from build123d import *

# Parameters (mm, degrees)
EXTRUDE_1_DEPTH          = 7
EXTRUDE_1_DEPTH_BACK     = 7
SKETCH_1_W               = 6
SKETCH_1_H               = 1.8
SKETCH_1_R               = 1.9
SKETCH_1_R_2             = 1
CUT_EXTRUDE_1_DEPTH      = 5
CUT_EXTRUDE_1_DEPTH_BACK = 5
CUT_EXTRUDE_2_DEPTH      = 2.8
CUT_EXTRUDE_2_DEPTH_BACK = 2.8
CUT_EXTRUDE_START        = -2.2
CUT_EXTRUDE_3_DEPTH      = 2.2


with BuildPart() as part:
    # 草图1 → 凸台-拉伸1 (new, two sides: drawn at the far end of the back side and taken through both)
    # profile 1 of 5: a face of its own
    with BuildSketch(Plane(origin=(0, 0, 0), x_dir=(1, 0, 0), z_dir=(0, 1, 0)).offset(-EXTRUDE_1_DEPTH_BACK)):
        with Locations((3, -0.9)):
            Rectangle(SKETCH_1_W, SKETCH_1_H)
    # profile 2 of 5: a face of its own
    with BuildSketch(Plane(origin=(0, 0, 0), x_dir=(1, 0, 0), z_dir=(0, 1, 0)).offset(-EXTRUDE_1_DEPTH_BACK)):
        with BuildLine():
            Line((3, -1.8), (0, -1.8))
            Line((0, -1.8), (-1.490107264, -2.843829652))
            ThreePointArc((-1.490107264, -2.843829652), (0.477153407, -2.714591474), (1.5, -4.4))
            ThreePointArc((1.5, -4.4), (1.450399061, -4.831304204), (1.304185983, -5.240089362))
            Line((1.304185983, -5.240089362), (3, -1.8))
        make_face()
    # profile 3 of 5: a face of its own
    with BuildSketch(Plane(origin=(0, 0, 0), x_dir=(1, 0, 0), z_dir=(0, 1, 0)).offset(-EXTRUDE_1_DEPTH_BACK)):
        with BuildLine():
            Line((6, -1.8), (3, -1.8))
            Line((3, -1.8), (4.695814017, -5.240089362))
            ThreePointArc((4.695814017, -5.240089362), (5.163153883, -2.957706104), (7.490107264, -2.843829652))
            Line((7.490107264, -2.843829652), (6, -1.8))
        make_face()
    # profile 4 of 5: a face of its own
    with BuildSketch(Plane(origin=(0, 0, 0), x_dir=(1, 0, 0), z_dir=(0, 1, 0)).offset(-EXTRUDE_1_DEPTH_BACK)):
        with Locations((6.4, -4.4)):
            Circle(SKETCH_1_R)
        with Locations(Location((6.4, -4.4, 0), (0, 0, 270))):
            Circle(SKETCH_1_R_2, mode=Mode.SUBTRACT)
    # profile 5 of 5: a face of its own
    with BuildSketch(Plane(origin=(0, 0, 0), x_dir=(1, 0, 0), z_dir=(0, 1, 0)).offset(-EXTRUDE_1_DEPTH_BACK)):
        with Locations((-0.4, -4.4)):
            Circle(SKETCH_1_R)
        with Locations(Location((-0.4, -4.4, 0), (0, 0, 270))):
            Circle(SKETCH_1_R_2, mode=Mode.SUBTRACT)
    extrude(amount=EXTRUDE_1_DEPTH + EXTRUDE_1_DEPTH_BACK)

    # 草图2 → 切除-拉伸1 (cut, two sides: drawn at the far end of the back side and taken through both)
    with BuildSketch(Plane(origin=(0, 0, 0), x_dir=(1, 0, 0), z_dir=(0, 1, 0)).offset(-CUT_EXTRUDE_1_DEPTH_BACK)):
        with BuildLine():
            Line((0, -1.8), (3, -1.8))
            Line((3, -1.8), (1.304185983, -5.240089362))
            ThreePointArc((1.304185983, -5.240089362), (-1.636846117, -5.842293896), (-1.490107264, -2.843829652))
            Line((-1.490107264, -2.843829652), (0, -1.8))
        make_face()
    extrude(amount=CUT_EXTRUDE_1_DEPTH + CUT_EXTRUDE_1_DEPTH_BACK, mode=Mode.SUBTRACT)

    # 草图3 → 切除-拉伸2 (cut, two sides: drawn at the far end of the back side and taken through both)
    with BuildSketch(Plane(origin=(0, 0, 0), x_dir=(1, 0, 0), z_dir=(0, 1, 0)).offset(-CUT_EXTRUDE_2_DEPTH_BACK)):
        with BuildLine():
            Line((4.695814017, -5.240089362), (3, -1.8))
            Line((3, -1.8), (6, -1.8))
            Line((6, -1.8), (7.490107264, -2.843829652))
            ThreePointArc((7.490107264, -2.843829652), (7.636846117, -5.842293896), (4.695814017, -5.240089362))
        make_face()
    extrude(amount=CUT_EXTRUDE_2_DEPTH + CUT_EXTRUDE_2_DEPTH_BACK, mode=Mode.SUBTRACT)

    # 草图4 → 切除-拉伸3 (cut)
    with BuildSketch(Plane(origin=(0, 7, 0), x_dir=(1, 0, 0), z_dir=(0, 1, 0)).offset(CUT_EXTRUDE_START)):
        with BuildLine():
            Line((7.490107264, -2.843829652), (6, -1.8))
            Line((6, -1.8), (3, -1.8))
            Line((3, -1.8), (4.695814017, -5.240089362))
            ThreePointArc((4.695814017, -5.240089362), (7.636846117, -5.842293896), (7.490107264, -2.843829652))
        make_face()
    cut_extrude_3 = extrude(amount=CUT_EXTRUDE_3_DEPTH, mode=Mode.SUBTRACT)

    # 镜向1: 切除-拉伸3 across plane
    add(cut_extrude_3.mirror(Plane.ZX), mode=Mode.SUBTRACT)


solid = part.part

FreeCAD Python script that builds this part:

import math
import FreeCAD as App
import Part
import Sketcher

V = App.Vector

doc = App.newDocument("Part")
body = doc.addObject("PartDesign::Body", "Body")

sketch1 = body.newObject("Sketcher::SketchObject", "Sketch")
sketch1.AttachmentSupport = (doc.getObject("XZ_Plane"), [""])
sketch1.MapMode = "FlatFace"
sketch1.addGeometry(Part.LineSegment(V(0, 0, 0), V(0, 1.8, 0)), False)
sketch1.addGeometry(Part.LineSegment(V(0, 1.8, 0), V(-1.5, 2.8, 0)), False)
sketch1.addGeometry(Part.ArcOfCircle(Part.Circle(V(-0.4, 4.4, 0), V(0, 0, 1), 1.9), math.radians(26), math.radians(235)), False)
sketch1.addGeometry(Part.LineSegment(V(1.3, 5.2, 0), V(3, 1.8, 0)), False)
sketch1.addGeometry(Part.LineSegment(V(3, 1.8, 0), V(4.7, 5.2, 0)), False)
sketch1.addGeometry(Part.ArcOfCircle(Part.Circle(V(6.4, 4.4, 0), V(0, 0, 1), 1.9), math.radians(-55), math.radians(154)), False)
sketch1.addGeometry(Part.LineSegment(V(7.5, 2.8, 0), V(6, 1.8, 0)), False)
sketch1.addGeometry(Part.LineSegment(V(6, 1.8, 0), V(6, 0, 0)), False)
sketch1.addGeometry(Part.LineSegment(V(6, 0, 0), V(0, 0, 0)), False)
sketch1.addGeometry(Part.Circle(V(-0.4, 4.4, 0), V(0, 0, 1), 1), False)
sketch1.addGeometry(Part.Circle(V(6.4, 4.4, 0), V(0, 0, 1), 1), False)
sketch1.addConstraint(Sketcher.Constraint("Coincident", 0, 2, 1, 1))
sketch1.addConstraint(Sketcher.Constraint("Tangent", 1, 2, 2, 2))
sketch1.addConstraint(Sketcher.Constraint("Tangent", 2, 1, 3, 1))
sketch1.addConstraint(Sketcher.Constraint("Coincident", 3, 2, 4, 1))
sketch1.addConstraint(Sketcher.Constraint("Tangent", 4, 2, 5, 2))
sketch1.addConstraint(Sketcher.Constraint("Tangent", 5, 1, 6, 1))
sketch1.addConstraint(Sketcher.Constraint("Coincident", 6, 2, 7, 1))
sketch1.addConstraint(Sketcher.Constraint("Coincident", 7, 2, 8, 1))
sketch1.addConstraint(Sketcher.Constraint("Coincident", 8, 2, 0, 1))
sketch1.addConstraint(Sketcher.Constraint("Vertical", 0))
sketch1.addConstraint(Sketcher.Constraint("Vertical", 7))
sketch1.addConstraint(Sketcher.Constraint("Horizontal", 8))
sketch1.addConstraint(Sketcher.Constraint("Coincident", 8, 2, -1, 1))
sketch1.addConstraint(Sketcher.Constraint("Coincident", 9, 3, 2, 3))
sketch1.addConstraint(Sketcher.Constraint("Coincident", 10, 3, 5, 3))
sketch1.addConstraint(Sketcher.Constraint("Equal", 2, 5))
sketch1.addConstraint(Sketcher.Constraint("Equal", 9, 10))
sketch1.addConstraint(Sketcher.Constraint("Horizontal", 2, 3, 5, 3))
sketch1.addConstraint(Sketcher.Constraint("Horizontal", 0, 2, 3, 2))
sketch1.addConstraint(Sketcher.Constraint("Horizontal", 2, 1, 4, 2))
sketch1.addConstraint(Sketcher.Constraint("Horizontal", 1, 2, 5, 1))
sketch1.addConstraint(Sketcher.Constraint("Horizontal", 3, 2, 6, 2))
sketch1.addConstraint(Sketcher.Constraint("Diameter", 9, 2.0))
sketch1.addConstraint(Sketcher.Constraint("Radius", 2, 1.9))
sketch1.addConstraint(Sketcher.Constraint("DistanceX", 8, 2, 8, 1, 6.0))
sketch1.addConstraint(Sketcher.Constraint("DistanceY", 0, 1, 0, 2, 1.8))
sketch1.addConstraint(Sketcher.Constraint("DistanceX", 2, 3, -1, 1, 0.4))
sketch1.addConstraint(Sketcher.Constraint("DistanceY", -1, 1, 2, 3, 4.4))
pad1 = body.newObject("PartDesign::Pad", "Pad")
pad1.Profile = sketch1
pad1.Type = "TwoLengths"
pad1.Length = 7
pad1.Length2 = 7
pad1.Reversed = True

sketch2 = body.newObject("Sketcher::SketchObject", "Sketch001")
sketch2.AttachmentSupport = (doc.getObject("XZ_Plane"), [""])
sketch2.MapMode = "FlatFace"
sketch2.addGeometry(Part.LineSegment(V(3, 1.8, 0), V(0, 1.8, 0)), False)
sketch2.addGeometry(Part.LineSegment(V(0, 1.8, 0), V(-1.5, 2.8, 0)), False)
sketch2.addGeometry(Part.ArcOfCircle(Part.Circle(V(-0.4, 4.4, 0), V(0, 0, 1), 1.9), math.radians(26), math.radians(235)), False)
sketch2.addGeometry(Part.LineSegment(V(1.3, 5.2, 0), V(3, 1.8, 0)), False)
sketch2.addConstraint(Sketcher.Constraint("Coincident", 0, 2, 1, 1))
sketch2.addConstraint(Sketcher.Constraint("Tangent", 1, 2, 2, 2))
sketch2.addConstraint(Sketcher.Constraint("Tangent", 2, 1, 3, 1))
sketch2.addConstraint(Sketcher.Constraint("Coincident", 3, 2, 0, 1))
sketch2.addConstraint(Sketcher.Constraint("Horizontal", 0))
sketch2.addConstraint(Sketcher.Constraint("PointOnObject", 0, 2, -2))
sketch2.addConstraint(Sketcher.Constraint("Radius", 2, 1.9))
sketch2.addConstraint(Sketcher.Constraint("DistanceX", 0, 2, 0, 1, 3.0))
sketch2.addConstraint(Sketcher.Constraint("DistanceX", 2, 3, -1, 1, 0.4))
sketch2.addConstraint(Sketcher.Constraint("DistanceY", -1, 1, 2, 3, 4.4))
sketch2.addConstraint(Sketcher.Constraint("DistanceY", -1, 1, 0, 2, 1.8))
pocket1 = body.newObject("PartDesign::Pocket", "Pocket")
pocket1.Profile = sketch2
pocket1.Type = "TwoLengths"
pocket1.Length = 5
pocket1.Length2 = 5

sketch3 = body.newObject("Sketcher::SketchObject", "Sketch002")
sketch3.AttachmentSupport = (doc.getObject("XZ_Plane"), [""])
sketch3.MapMode = "FlatFace"
sketch3.addGeometry(Part.LineSegment(V(3, 1.8, 0), V(4.7, 5.2, 0)), False)
sketch3.addGeometry(Part.ArcOfCircle(Part.Circle(V(6.4, 4.4, 0), V(0, 0, 1), 1.9), math.radians(-55), math.radians(154)), False)
sketch3.addGeometry(Part.LineSegment(V(7.5, 2.8, 0), V(6, 1.8, 0)), False)
sketch3.addGeometry(Part.LineSegment(V(6, 1.8, 0), V(3, 1.8, 0)), False)
sketch3.addConstraint(Sketcher.Constraint("Tangent", 0, 2, 1, 2))
sketch3.addConstraint(Sketcher.Constraint("Tangent", 1, 1, 2, 1))
sketch3.addConstraint(Sketcher.Constraint("Coincident", 2, 2, 3, 1))
sketch3.addConstraint(Sketcher.Constraint("Coincident", 3, 2, 0, 1))
sketch3.addConstraint(Sketcher.Constraint("Horizontal", 3))
sketch3.addConstraint(Sketcher.Constraint("Radius", 1, 1.9))
sketch3.addConstraint(Sketcher.Constraint("DistanceX", 3, 2, 3, 1, 3.0))
sketch3.addConstraint(Sketcher.Constraint("DistanceX", -1, 1, 2, 2, 6.0))
sketch3.addConstraint(Sketcher.Constraint("DistanceX", -1, 1, 1, 3, 6.4))
sketch3.addConstraint(Sketcher.Constraint("DistanceY", -1, 1, 1, 3, 4.4))
sketch3.addConstraint(Sketcher.Constraint("DistanceY", -1, 1, 2, 2, 1.8))
pocket2 = body.newObject("PartDesign::Pocket", "Pocket001")
pocket2.Profile = sketch3
pocket2.Type = "TwoLengths"
pocket2.Length = 2.8
pocket2.Length2 = 2.8

sketch4 = body.newObject("Sketcher::SketchObject", "Sketch003")
sketch4.AttachmentSupport = (doc.getObject("XZ_Plane"), [""])
sketch4.MapMode = "FlatFace"
sketch4.AttachmentOffset = App.Placement(V(0, 0, -4.8), App.Rotation())
sketch4.addGeometry(Part.LineSegment(V(7.5, 2.8, 0), V(6, 1.8, 0)), False)
sketch4.addGeometry(Part.LineSegment(V(6, 1.8, 0), V(3, 1.8, 0)), False)
sketch4.addGeometry(Part.LineSegment(V(3, 1.8, 0), V(4.7, 5.2, 0)), False)
sketch4.addGeometry(Part.ArcOfCircle(Part.Circle(V(6.4, 4.4, 0), V(0, 0, 1), 1.9), math.radians(-55), math.radians(154)), False)
sketch4.addConstraint(Sketcher.Constraint("Coincident", 0, 2, 1, 1))
sketch4.addConstraint(Sketcher.Constraint("Coincident", 1, 2, 2, 1))
sketch4.addConstraint(Sketcher.Constraint("Tangent", 2, 2, 3, 2))
sketch4.addConstraint(Sketcher.Constraint("Tangent", 3, 1, 0, 1))
sketch4.addConstraint(Sketcher.Constraint("Horizontal", 1))
sketch4.addConstraint(Sketcher.Constraint("Radius", 3, 1.9))
sketch4.addConstraint(Sketcher.Constraint("DistanceX", 1, 2, 1, 1, 3.0))
sketch4.addConstraint(Sketcher.Constraint("DistanceX", -1, 1, 0, 2, 6.0))
sketch4.addConstraint(Sketcher.Constraint("DistanceX", -1, 1, 3, 3, 6.4))
sketch4.addConstraint(Sketcher.Constraint("DistanceY", -1, 1, 3, 3, 4.4))
sketch4.addConstraint(Sketcher.Constraint("DistanceY", -1, 1, 0, 2, 1.8))
pocket3 = body.newObject("PartDesign::Pocket", "Pocket002")
pocket3.Profile = sketch4
pocket3.Length = 2.2
doc.recompute()

mirrored = body.newObject("PartDesign::Mirrored", "Mirrored")
mirrored.Originals = [pocket3]
mirrored.MirrorPlane = (doc.getObject("XZ_Plane"), [""])
body.Tip = mirrored

doc.recompute()
